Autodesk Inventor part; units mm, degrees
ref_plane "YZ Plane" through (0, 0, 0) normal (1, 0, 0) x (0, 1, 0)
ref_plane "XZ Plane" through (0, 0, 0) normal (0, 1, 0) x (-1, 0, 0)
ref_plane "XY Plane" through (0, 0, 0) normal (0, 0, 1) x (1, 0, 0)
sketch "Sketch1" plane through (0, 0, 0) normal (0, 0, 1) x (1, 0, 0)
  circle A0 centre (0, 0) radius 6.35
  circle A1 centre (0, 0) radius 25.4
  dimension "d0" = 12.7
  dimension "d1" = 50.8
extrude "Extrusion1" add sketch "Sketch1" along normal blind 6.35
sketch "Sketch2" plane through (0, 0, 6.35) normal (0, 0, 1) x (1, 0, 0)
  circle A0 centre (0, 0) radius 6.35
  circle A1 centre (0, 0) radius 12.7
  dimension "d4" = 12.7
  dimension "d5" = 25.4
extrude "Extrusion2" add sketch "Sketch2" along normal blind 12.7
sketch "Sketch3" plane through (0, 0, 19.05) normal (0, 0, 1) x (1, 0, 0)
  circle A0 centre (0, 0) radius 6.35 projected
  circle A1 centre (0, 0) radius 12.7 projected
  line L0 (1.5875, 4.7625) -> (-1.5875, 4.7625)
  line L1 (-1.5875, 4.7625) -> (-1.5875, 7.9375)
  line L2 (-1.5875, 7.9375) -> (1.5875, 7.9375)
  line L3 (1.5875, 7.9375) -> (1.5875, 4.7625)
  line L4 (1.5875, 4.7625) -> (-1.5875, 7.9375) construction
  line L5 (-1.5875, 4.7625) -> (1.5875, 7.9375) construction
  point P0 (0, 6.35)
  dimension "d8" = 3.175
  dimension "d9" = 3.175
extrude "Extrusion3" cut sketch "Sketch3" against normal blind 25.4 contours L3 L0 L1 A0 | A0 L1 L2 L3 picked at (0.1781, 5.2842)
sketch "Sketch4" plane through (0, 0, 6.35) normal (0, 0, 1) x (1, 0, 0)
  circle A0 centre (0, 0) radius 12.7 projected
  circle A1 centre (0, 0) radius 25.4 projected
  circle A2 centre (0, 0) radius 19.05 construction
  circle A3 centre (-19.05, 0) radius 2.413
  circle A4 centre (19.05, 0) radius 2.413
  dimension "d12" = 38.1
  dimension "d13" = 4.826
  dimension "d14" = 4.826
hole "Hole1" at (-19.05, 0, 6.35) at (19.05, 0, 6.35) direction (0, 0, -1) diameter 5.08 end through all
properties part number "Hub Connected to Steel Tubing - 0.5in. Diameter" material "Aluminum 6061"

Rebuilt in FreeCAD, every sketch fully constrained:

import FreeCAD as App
import Part
import Sketcher
Q = App.Units.Quantity


def add_polygon(sketch, points):
    """Adds a closed chain of lines whose ends are joined by coincident constraints."""
    first, n = sketch.GeometryCount, len(points)
    for a, b in zip(points, points[1:] + points[:1]):
        sketch.addGeometry(Part.LineSegment(App.Vector(*a, 0), App.Vector(*b, 0)), False)
    for i in range(n):
        sketch.addConstraint(Sketcher.Constraint("Coincident", first + i, 2, first + (i + 1) % n, 1))

doc = App.newDocument("Part")
body = doc.addObject("PartDesign::Body", "Body")

sketch1 = body.newObject("Sketcher::SketchObject", "Sketch")
sketch1.AttachmentSupport = (doc.getObject("XY_Plane"), [""])
sketch1.MapMode = "FlatFace"
sketch1.addGeometry(Part.Circle(App.Vector(0, 0, 0), App.Vector(0, 0, 1), 25), False)
sketch1.addGeometry(Part.Circle(App.Vector(0, 0, 0), App.Vector(0, 0, 1), 6), False)
sketch1.addConstraint(Sketcher.Constraint("Coincident", 0, 3, -1, 1))
sketch1.addConstraint(Sketcher.Constraint("Coincident", 1, 3, -1, 1))
sketch1.addConstraint(Sketcher.Constraint("Diameter", 0, Q("2 in")))
sketch1.addConstraint(Sketcher.Constraint("Diameter", 1, Q("0.5 in")))
pad1 = body.newObject("PartDesign::Pad", "Pad")
pad1.Profile = sketch1
pad1.Length = Q("0.25 in")

sketch2 = body.newObject("Sketcher::SketchObject", "Sketch001")
sketch2.AttachmentSupport = (doc.getObject("XY_Plane"), [""])
sketch2.MapMode = "FlatFace"
sketch2.AttachmentOffset = App.Placement(App.Vector(0, 0, 0.25 * 25.4), App.Rotation())
sketch2.addGeometry(Part.Circle(App.Vector(0, 0, 0), App.Vector(0, 0, 1), 13), False)
sketch2.addGeometry(Part.Circle(App.Vector(0, 0, 0), App.Vector(0, 0, 1), 6), False)
sketch2.addConstraint(Sketcher.Constraint("Coincident", 0, 3, -1, 1))
sketch2.addConstraint(Sketcher.Constraint("Coincident", 1, 3, -1, 1))
sketch2.addConstraint(Sketcher.Constraint("Diameter", 0, Q("1 in")))
sketch2.addConstraint(Sketcher.Constraint("Diameter", 1, Q("0.5 in")))
pad2 = body.newObject("PartDesign::Pad", "Pad001")
pad2.Profile = sketch2
pad2.Length = Q("0.5 in")

sketch3 = body.newObject("Sketcher::SketchObject", "Sketch002")
sketch3.AttachmentSupport = (doc.getObject("XY_Plane"), [""])
sketch3.MapMode = "FlatFace"
sketch3.AttachmentOffset = App.Placement(App.Vector(0, 0, 0.75 * 25.4), App.Rotation())
add_polygon(sketch3, [(1.6, 4.8), (1.6, 7.9), (-1.6, 7.9), (-1.6, 4.8)])
sketch3.addConstraint(Sketcher.Constraint("Vertical", 0))
sketch3.addConstraint(Sketcher.Constraint("Horizontal", 1))
sketch3.addConstraint(Sketcher.Constraint("Vertical", 2))
sketch3.addConstraint(Sketcher.Constraint("Horizontal", 3))
sketch3.addConstraint(Sketcher.Constraint("Equal", 3, 0))
sketch3.addConstraint(Sketcher.Constraint("DistanceX", 1, 2, 1, 1, Q("0.125 in")))
sketch3.addConstraint(Sketcher.Constraint("DistanceX", -1, 1, 0, 2, Q("0.0625 in")))
sketch3.addConstraint(Sketcher.Constraint("DistanceY", -1, 1, 0, 2, Q("0.3125 in")))
pocket1 = body.newObject("PartDesign::Pocket", "Pocket")
pocket1.Profile = sketch3
pocket1.Length = Q("1 in")

sketch4 = body.newObject("Sketcher::SketchObject", "Sketch003")
sketch4.AttachmentSupport = (doc.getObject("XY_Plane"), [""])
sketch4.MapMode = "FlatFace"
sketch4.AttachmentOffset = App.Placement(App.Vector(0, 0, 0.25 * 25.4), App.Rotation())
sketch4.addGeometry(Part.Circle(App.Vector(-19.1, 0, 0), App.Vector(0, 0, 1), 2.5), False)
sketch4.addGeometry(Part.Circle(App.Vector(19.1, 0, 0), App.Vector(0, 0, 1), 2.5), False)
sketch4.addConstraint(Sketcher.Constraint("Equal", 0, 1))
sketch4.addConstraint(Sketcher.Constraint("Symmetric", 0, 3, 1, 3, -1, 1))
sketch4.addConstraint(Sketcher.Constraint("PointOnObject", 0, 3, -1))
sketch4.addConstraint(Sketcher.Constraint("Diameter", 0, Q("0.2 in")))
sketch4.addConstraint(Sketcher.Constraint("DistanceX", 0, 3, 1, 3, Q("1.5 in")))
doc.recompute()
hole = body.newObject("PartDesign::Hole", "Hole")
hole.Profile = sketch4
hole.ThreadType = "None"
hole.Diameter = Q("0.2 in")
hole.DepthType = "ThroughAll"

doc.recompute()
